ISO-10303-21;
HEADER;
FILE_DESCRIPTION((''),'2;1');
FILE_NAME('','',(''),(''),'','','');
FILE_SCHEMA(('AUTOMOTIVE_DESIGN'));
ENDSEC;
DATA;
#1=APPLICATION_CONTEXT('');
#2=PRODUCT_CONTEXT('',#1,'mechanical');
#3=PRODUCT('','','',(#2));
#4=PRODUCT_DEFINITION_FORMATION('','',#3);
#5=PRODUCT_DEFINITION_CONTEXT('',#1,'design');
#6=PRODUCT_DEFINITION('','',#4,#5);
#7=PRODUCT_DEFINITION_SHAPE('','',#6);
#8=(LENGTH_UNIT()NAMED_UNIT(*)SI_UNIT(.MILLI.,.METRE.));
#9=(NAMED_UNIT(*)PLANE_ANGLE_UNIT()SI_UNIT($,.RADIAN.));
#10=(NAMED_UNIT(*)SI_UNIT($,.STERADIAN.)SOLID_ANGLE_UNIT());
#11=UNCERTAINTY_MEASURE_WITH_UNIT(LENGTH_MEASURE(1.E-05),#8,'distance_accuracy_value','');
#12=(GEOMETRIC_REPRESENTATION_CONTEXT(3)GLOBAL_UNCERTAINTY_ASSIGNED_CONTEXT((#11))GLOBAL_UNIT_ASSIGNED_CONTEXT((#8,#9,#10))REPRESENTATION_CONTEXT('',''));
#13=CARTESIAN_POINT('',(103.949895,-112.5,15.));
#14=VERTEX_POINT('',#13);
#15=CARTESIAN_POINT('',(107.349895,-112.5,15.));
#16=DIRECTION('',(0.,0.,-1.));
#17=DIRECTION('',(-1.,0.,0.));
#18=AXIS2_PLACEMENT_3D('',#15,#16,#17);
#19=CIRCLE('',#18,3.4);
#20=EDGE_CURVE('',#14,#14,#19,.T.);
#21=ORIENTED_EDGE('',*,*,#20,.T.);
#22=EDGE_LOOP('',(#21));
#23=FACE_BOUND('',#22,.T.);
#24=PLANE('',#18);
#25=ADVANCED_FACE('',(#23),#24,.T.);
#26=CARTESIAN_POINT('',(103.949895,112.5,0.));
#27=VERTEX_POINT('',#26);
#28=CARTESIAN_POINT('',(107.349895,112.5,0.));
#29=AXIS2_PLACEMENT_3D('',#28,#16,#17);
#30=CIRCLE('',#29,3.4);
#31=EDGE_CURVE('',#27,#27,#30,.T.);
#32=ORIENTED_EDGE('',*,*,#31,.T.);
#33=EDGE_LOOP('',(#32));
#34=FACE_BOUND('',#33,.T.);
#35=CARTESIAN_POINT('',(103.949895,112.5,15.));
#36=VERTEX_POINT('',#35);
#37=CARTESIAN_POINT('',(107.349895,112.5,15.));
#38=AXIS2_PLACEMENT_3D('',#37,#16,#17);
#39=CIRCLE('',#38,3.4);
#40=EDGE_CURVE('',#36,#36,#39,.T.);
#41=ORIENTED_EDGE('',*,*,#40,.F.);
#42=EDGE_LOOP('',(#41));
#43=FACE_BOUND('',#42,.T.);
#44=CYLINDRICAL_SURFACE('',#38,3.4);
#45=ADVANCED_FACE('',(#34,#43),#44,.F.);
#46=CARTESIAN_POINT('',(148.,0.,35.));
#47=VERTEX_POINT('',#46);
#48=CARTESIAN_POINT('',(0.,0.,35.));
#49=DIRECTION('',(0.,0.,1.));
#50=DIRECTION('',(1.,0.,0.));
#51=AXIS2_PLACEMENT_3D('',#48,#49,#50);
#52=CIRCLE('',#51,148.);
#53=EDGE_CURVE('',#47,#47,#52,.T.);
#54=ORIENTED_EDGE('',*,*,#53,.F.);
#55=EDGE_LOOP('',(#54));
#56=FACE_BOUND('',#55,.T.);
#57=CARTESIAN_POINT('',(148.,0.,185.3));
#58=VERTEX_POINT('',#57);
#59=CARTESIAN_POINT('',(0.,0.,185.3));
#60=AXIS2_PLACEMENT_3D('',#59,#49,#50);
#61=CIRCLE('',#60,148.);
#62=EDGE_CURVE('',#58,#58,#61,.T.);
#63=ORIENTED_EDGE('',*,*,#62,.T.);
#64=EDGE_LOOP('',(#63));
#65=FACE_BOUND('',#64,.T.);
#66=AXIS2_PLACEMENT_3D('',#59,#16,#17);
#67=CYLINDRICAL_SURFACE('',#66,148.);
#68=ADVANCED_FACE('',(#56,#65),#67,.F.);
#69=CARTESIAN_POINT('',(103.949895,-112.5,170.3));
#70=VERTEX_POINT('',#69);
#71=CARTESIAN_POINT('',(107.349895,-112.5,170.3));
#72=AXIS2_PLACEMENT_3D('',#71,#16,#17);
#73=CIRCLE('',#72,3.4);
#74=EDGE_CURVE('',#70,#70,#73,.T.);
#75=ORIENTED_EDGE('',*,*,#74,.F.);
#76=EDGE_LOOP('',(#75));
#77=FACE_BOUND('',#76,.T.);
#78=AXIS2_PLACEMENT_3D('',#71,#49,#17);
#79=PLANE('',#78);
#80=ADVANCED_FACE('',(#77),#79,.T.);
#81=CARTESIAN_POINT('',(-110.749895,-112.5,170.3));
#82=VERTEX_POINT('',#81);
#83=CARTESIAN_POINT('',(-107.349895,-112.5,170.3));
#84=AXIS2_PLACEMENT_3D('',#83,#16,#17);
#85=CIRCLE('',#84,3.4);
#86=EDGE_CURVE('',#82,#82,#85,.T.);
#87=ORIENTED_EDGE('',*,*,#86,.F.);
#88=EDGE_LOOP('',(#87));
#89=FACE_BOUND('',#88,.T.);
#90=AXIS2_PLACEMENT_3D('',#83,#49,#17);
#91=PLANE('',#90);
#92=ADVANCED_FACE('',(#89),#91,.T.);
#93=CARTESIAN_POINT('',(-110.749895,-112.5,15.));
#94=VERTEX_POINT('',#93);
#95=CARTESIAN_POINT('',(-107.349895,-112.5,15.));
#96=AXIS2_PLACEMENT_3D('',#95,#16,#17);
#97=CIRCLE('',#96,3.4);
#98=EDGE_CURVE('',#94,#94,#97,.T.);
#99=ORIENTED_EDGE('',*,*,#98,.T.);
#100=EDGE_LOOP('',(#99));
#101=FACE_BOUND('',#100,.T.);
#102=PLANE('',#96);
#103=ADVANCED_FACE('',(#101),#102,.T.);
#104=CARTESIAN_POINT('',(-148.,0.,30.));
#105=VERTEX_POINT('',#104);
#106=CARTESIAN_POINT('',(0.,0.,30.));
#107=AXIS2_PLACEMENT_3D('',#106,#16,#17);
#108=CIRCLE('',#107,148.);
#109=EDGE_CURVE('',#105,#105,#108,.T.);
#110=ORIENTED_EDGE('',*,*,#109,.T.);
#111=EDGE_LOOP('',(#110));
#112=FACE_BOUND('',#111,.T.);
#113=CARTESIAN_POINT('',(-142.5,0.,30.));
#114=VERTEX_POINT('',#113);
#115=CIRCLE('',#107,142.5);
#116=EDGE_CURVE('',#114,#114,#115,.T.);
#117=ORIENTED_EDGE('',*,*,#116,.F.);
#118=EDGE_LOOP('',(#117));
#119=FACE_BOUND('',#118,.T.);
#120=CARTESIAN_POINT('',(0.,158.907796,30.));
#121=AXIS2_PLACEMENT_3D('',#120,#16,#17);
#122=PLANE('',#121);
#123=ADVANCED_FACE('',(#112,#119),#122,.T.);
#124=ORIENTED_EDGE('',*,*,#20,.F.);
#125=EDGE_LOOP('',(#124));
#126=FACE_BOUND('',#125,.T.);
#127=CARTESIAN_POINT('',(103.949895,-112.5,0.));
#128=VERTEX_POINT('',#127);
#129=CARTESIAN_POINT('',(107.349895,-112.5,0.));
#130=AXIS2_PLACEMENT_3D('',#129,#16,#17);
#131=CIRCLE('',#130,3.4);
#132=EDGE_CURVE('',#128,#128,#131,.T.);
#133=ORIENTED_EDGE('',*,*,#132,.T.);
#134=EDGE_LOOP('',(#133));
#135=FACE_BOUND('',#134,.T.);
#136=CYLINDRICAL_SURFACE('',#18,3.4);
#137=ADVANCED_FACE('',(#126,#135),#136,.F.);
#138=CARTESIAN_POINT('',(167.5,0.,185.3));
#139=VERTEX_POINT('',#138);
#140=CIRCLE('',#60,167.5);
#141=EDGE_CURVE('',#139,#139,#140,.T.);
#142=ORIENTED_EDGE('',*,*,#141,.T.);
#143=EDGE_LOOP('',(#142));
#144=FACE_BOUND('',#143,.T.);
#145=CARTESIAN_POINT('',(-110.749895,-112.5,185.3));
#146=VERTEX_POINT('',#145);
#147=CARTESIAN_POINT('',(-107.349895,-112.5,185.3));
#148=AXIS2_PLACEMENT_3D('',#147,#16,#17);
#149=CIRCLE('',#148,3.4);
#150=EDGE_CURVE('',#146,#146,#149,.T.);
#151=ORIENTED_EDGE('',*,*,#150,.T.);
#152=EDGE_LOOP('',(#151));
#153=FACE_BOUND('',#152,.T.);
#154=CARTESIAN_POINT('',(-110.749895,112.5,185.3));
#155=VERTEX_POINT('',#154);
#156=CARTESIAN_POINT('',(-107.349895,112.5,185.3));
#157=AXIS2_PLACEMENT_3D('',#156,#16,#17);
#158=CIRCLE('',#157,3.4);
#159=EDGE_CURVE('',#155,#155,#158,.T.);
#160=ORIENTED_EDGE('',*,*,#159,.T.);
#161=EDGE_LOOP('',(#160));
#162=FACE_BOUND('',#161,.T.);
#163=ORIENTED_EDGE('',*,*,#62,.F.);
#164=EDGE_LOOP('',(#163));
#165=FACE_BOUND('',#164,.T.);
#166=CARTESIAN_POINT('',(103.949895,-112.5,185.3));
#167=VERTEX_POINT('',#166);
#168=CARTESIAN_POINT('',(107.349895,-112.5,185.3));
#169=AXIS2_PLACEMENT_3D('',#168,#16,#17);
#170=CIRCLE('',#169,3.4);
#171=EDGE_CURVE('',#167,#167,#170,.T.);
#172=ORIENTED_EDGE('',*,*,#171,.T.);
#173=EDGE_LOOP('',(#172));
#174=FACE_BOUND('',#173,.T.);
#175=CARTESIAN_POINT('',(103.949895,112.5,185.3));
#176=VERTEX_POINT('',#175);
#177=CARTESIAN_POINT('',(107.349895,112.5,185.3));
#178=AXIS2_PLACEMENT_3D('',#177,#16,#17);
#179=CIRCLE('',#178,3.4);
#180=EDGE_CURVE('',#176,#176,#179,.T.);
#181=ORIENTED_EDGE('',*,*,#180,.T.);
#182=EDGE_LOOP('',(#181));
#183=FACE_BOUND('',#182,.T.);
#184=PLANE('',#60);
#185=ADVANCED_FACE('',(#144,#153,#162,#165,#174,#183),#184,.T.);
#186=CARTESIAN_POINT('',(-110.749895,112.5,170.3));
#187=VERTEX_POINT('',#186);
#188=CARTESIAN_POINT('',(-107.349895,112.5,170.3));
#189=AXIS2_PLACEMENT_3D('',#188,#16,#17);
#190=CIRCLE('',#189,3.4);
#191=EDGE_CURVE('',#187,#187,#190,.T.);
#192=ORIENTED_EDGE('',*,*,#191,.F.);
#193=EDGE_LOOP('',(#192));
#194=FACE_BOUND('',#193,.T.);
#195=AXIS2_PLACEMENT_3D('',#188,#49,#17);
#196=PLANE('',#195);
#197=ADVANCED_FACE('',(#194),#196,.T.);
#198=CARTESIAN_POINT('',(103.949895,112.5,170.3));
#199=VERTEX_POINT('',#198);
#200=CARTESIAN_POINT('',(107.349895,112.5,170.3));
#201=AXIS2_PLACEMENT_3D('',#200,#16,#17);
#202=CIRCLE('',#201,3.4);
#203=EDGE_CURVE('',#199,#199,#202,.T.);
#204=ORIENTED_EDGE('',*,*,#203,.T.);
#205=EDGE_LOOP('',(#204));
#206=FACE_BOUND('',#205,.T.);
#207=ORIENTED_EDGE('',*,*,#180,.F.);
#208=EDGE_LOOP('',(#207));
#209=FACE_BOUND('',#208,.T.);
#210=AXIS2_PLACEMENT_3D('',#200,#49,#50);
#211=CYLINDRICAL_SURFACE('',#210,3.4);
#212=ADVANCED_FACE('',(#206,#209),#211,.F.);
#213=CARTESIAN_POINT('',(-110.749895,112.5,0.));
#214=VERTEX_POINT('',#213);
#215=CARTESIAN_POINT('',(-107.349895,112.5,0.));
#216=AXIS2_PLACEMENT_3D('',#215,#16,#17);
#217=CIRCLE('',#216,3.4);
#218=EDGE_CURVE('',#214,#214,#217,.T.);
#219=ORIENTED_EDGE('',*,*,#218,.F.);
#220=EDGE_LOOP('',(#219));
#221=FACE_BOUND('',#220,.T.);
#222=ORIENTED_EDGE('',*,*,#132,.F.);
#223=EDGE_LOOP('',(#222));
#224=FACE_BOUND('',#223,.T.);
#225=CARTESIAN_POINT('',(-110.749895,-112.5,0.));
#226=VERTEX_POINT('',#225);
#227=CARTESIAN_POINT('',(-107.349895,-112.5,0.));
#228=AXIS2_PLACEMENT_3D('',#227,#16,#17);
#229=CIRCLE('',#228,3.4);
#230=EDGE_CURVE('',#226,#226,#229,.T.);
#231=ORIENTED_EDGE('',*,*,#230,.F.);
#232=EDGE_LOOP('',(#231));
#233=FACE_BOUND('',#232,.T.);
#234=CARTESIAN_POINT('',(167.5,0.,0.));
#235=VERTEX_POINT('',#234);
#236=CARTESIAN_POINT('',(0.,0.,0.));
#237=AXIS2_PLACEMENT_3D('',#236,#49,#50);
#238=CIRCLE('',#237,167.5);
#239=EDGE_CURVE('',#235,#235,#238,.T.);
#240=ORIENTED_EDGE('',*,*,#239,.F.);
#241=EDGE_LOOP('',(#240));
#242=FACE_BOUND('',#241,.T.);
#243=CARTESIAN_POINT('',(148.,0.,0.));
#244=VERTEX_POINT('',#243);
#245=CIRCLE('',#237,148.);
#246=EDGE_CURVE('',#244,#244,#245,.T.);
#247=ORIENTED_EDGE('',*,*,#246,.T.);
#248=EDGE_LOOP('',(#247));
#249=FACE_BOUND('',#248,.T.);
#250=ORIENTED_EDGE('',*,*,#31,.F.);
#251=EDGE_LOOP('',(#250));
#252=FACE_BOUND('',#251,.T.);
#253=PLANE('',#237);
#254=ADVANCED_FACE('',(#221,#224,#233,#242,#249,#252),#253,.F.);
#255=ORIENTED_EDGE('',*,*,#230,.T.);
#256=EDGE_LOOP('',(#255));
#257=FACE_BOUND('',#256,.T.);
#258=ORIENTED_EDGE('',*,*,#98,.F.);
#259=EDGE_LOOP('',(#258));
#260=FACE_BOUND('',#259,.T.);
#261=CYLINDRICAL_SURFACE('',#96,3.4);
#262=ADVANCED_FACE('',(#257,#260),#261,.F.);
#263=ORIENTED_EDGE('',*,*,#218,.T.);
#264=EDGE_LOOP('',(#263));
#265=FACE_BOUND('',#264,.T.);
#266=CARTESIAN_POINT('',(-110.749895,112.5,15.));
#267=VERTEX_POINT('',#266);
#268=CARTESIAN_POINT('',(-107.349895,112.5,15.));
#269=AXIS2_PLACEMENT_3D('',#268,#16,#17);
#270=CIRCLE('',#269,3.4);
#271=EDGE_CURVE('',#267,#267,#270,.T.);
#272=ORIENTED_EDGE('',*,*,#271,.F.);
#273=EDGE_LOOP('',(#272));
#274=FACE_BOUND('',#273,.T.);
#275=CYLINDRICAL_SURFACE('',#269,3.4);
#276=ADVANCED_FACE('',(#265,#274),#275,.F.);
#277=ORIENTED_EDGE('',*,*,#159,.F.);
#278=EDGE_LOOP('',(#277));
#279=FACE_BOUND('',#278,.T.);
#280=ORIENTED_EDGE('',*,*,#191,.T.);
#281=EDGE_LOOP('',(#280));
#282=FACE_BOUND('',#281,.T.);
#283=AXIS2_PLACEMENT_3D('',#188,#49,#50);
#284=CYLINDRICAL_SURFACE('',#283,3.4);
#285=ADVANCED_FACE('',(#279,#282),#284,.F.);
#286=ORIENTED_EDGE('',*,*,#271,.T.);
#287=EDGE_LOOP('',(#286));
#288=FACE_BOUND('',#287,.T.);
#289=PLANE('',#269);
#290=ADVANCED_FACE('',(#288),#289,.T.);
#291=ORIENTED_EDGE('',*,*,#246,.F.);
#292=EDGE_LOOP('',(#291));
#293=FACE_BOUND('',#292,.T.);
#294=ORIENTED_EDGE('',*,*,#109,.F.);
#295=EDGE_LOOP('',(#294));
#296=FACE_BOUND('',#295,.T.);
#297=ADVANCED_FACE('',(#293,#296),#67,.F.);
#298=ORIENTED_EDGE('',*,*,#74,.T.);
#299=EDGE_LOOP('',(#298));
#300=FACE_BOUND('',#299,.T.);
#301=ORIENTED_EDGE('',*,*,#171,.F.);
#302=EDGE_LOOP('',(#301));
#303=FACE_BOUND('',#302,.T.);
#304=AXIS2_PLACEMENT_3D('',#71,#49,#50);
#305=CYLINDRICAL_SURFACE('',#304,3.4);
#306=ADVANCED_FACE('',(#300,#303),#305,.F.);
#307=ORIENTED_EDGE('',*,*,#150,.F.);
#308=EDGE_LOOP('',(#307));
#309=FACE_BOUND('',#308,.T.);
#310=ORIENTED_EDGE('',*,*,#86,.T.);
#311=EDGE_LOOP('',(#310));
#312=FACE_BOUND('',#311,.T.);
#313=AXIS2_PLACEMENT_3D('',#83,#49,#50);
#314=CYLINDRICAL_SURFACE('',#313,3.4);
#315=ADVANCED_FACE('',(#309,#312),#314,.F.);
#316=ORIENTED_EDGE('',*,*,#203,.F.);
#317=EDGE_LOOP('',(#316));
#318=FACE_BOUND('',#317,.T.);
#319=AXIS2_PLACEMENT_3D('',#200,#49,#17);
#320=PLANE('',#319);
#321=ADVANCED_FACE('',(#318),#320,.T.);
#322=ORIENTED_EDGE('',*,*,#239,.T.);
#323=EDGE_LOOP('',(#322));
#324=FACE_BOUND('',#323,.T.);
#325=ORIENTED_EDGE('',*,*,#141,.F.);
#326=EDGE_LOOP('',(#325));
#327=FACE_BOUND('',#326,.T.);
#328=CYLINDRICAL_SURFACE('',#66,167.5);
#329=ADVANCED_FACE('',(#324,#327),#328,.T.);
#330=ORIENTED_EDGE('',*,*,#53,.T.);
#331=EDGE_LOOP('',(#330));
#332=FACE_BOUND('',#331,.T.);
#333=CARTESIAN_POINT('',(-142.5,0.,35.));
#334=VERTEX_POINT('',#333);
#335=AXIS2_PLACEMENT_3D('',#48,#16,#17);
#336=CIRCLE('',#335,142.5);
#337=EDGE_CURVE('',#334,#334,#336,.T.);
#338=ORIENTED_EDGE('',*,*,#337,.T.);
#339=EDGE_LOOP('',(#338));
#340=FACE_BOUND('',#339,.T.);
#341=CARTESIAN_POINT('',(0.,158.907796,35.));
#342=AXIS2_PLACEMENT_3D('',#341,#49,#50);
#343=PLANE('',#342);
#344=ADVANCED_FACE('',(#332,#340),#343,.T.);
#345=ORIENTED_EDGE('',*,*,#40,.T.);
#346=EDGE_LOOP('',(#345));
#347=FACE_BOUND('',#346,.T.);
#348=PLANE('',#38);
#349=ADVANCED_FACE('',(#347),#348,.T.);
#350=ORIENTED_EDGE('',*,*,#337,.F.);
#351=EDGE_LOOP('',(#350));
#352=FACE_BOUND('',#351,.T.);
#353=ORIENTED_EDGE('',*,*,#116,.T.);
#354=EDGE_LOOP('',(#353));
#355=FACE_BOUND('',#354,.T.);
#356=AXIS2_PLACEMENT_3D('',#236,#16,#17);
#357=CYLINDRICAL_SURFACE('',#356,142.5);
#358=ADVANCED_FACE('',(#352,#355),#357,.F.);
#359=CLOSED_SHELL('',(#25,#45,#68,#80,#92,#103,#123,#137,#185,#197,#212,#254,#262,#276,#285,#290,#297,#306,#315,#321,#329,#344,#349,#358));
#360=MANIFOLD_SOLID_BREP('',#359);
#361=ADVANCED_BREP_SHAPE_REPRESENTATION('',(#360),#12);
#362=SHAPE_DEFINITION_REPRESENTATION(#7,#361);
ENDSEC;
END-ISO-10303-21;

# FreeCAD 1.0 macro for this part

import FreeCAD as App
import Part
import Sketcher
Q = App.Units.Quantity

doc = App.newDocument("Part")
params = doc.addObject("Spreadsheet::Sheet", "Params")
for row, (alias, value) in enumerate([
    ("sketch1_diameter", "335 mm"),
    ("sketch1_diameter2", "296 mm"),
    ("pad1_length", "185.3 mm"),
    ("sketch2_diameter", "6.8 mm"),
    ("pocket1_length", "15 mm"),
    ("sketch3_height", "5 mm"),
    ("revolution_angle", "360 deg"),
], start=1):
    params.set(f"A{row}", alias)
    params.set(f"B{row}", "=" + value)
    params.setAlias(f"B{row}", alias)

body = doc.addObject("PartDesign::Body", "Body")

sketch1 = body.newObject("Sketcher::SketchObject", "Sketch")
sketch1.AttachmentSupport = (doc.getObject("XY_Plane"), [""])
sketch1.MapMode = "FlatFace"
sketch1.addGeometry([
    Part.Circle(App.Vector(0, 0, 0), App.Vector(0, 0, 1), 168),
    Part.Circle(App.Vector(0, 0, 0), App.Vector(0, 0, 1), 148),
], False)
sketch1.addConstraint([
    Sketcher.Constraint("Coincident", 0, 3, -1, 1),
    Sketcher.Constraint("Coincident", 1, 3, -1, 1),
    Sketcher.Constraint("Diameter", 0, Q("335 mm")),
    Sketcher.Constraint("Diameter", 1, Q("296 mm")),
])
sketch1.setExpression("Constraints[2]", "Params.sketch1_diameter")
sketch1.setExpression("Constraints[3]", "Params.sketch1_diameter2")
pad1 = body.newObject("PartDesign::Pad", "Pad")
pad1.Profile = sketch1
pad1.setExpression("Length", "Params.pad1_length")

sketch2 = body.newObject("Sketcher::SketchObject", "Sketch001")
sketch2.AttachmentSupport = (doc.getObject("XY_Plane"), [""])
sketch2.MapMode = "FlatFace"
sketch2.addGeometry([
    Part.Circle(App.Vector(-107.3, -112.5, 0), App.Vector(0, 0, 1), 3.4),
    Part.Circle(App.Vector(107.3, -112.5, 0), App.Vector(0, 0, 1), 3.4),
    Part.Circle(App.Vector(107.3, 112.5, 0), App.Vector(0, 0, 1), 3.4),
    Part.Circle(App.Vector(-107.3, 112.5, 0), App.Vector(0, 0, 1), 3.4),
], False)
sketch2.addConstraint([
    Sketcher.Constraint("Equal", 0, 1),
    Sketcher.Constraint("Equal", 1, 2),
    Sketcher.Constraint("Equal", 2, 3),
    Sketcher.Constraint("Symmetric", 0, 3, 2, 3, -1, 1),
    Sketcher.Constraint("Symmetric", 1, 3, 3, 3, -1, 1),
    Sketcher.Constraint("Symmetric", 0, 3, 1, 3, -2),
    Sketcher.Constraint("Diameter", 0, Q("6.8 mm")),
    Sketcher.Constraint("DistanceY", 1, 3, 2, 3, Q("225 mm")),
    Sketcher.Constraint("DistanceX", 0, 3, 1, 3, Q("214.69979 mm")),
])
sketch2.setExpression("Constraints[6]", "Params.sketch2_diameter")
pocket1 = body.newObject("PartDesign::Pocket", "Pocket")
pocket1.Profile = sketch2
pocket1.setExpression("Length", "Params.pocket1_length")
pocket1.Reversed = True

sketch3 = body.newObject("Sketcher::SketchObject", "Sketch002")
sketch3.AttachmentSupport = (doc.getObject("YZ_Plane"), [""])
sketch3.MapMode = "FlatFace"
sketch3.addGeometry([
    Part.LineSegment(App.Vector(159, 35, 0), App.Vector(142, 35, 0)),
    Part.LineSegment(App.Vector(142, 35, 0), App.Vector(142, 30, 0)),
    Part.LineSegment(App.Vector(142, 30, 0), App.Vector(159, 30, 0)),
    Part.LineSegment(App.Vector(159, 30, 0), App.Vector(159, 35, 0)),
], False)
sketch3.addConstraint([
    Sketcher.Constraint("Coincident", 0, 2, 1, 1),
    Sketcher.Constraint("Coincident", 1, 2, 2, 1),
    Sketcher.Constraint("Coincident", 2, 2, 3, 1),
    Sketcher.Constraint("Coincident", 3, 2, 0, 1),
    Sketcher.Constraint("Horizontal", 0),
    Sketcher.Constraint("Vertical", 1),
    Sketcher.Constraint("Horizontal", 2),
    Sketcher.Constraint("Vertical", 3),
    Sketcher.Constraint("DistanceY", 1, 2, 1, 1, Q("5 mm")),
    Sketcher.Constraint("DistanceY", -1, 1, 0, 2, Q("35 mm")),
    Sketcher.Constraint("DistanceX", -1, 1, 0, 2, Q("142.5 mm")),
    Sketcher.Constraint("DistanceX", 0, 2, 0, 1, Q("16.407796 mm")),
])
sketch3.setExpression("Constraints[8]", "Params.sketch3_height")
revolution = body.newObject("PartDesign::Revolution", "Revolution")
revolution.Profile = sketch3
revolution.ReferenceAxis = (sketch3, ["V_Axis"])
revolution.setExpression("Angle", "Params.revolution_angle")
doc.recompute()

datumplane = body.newObject("PartDesign::Plane", "DatumPlane")
datumplane.AttachmentSupport = (doc.getObject("XY_Plane"), [""])
datumplane.MapMode = "FlatFace"
datumplane.AttachmentOffset = App.Placement(App.Vector(0, 0, 92.65), App.Rotation())
mirrored = body.newObject("PartDesign::Mirrored", "Mirrored")
mirrored.Originals = [pocket1]
mirrored.MirrorPlane = (datumplane, [""])
body.Tip = mirrored

doc.recompute()
